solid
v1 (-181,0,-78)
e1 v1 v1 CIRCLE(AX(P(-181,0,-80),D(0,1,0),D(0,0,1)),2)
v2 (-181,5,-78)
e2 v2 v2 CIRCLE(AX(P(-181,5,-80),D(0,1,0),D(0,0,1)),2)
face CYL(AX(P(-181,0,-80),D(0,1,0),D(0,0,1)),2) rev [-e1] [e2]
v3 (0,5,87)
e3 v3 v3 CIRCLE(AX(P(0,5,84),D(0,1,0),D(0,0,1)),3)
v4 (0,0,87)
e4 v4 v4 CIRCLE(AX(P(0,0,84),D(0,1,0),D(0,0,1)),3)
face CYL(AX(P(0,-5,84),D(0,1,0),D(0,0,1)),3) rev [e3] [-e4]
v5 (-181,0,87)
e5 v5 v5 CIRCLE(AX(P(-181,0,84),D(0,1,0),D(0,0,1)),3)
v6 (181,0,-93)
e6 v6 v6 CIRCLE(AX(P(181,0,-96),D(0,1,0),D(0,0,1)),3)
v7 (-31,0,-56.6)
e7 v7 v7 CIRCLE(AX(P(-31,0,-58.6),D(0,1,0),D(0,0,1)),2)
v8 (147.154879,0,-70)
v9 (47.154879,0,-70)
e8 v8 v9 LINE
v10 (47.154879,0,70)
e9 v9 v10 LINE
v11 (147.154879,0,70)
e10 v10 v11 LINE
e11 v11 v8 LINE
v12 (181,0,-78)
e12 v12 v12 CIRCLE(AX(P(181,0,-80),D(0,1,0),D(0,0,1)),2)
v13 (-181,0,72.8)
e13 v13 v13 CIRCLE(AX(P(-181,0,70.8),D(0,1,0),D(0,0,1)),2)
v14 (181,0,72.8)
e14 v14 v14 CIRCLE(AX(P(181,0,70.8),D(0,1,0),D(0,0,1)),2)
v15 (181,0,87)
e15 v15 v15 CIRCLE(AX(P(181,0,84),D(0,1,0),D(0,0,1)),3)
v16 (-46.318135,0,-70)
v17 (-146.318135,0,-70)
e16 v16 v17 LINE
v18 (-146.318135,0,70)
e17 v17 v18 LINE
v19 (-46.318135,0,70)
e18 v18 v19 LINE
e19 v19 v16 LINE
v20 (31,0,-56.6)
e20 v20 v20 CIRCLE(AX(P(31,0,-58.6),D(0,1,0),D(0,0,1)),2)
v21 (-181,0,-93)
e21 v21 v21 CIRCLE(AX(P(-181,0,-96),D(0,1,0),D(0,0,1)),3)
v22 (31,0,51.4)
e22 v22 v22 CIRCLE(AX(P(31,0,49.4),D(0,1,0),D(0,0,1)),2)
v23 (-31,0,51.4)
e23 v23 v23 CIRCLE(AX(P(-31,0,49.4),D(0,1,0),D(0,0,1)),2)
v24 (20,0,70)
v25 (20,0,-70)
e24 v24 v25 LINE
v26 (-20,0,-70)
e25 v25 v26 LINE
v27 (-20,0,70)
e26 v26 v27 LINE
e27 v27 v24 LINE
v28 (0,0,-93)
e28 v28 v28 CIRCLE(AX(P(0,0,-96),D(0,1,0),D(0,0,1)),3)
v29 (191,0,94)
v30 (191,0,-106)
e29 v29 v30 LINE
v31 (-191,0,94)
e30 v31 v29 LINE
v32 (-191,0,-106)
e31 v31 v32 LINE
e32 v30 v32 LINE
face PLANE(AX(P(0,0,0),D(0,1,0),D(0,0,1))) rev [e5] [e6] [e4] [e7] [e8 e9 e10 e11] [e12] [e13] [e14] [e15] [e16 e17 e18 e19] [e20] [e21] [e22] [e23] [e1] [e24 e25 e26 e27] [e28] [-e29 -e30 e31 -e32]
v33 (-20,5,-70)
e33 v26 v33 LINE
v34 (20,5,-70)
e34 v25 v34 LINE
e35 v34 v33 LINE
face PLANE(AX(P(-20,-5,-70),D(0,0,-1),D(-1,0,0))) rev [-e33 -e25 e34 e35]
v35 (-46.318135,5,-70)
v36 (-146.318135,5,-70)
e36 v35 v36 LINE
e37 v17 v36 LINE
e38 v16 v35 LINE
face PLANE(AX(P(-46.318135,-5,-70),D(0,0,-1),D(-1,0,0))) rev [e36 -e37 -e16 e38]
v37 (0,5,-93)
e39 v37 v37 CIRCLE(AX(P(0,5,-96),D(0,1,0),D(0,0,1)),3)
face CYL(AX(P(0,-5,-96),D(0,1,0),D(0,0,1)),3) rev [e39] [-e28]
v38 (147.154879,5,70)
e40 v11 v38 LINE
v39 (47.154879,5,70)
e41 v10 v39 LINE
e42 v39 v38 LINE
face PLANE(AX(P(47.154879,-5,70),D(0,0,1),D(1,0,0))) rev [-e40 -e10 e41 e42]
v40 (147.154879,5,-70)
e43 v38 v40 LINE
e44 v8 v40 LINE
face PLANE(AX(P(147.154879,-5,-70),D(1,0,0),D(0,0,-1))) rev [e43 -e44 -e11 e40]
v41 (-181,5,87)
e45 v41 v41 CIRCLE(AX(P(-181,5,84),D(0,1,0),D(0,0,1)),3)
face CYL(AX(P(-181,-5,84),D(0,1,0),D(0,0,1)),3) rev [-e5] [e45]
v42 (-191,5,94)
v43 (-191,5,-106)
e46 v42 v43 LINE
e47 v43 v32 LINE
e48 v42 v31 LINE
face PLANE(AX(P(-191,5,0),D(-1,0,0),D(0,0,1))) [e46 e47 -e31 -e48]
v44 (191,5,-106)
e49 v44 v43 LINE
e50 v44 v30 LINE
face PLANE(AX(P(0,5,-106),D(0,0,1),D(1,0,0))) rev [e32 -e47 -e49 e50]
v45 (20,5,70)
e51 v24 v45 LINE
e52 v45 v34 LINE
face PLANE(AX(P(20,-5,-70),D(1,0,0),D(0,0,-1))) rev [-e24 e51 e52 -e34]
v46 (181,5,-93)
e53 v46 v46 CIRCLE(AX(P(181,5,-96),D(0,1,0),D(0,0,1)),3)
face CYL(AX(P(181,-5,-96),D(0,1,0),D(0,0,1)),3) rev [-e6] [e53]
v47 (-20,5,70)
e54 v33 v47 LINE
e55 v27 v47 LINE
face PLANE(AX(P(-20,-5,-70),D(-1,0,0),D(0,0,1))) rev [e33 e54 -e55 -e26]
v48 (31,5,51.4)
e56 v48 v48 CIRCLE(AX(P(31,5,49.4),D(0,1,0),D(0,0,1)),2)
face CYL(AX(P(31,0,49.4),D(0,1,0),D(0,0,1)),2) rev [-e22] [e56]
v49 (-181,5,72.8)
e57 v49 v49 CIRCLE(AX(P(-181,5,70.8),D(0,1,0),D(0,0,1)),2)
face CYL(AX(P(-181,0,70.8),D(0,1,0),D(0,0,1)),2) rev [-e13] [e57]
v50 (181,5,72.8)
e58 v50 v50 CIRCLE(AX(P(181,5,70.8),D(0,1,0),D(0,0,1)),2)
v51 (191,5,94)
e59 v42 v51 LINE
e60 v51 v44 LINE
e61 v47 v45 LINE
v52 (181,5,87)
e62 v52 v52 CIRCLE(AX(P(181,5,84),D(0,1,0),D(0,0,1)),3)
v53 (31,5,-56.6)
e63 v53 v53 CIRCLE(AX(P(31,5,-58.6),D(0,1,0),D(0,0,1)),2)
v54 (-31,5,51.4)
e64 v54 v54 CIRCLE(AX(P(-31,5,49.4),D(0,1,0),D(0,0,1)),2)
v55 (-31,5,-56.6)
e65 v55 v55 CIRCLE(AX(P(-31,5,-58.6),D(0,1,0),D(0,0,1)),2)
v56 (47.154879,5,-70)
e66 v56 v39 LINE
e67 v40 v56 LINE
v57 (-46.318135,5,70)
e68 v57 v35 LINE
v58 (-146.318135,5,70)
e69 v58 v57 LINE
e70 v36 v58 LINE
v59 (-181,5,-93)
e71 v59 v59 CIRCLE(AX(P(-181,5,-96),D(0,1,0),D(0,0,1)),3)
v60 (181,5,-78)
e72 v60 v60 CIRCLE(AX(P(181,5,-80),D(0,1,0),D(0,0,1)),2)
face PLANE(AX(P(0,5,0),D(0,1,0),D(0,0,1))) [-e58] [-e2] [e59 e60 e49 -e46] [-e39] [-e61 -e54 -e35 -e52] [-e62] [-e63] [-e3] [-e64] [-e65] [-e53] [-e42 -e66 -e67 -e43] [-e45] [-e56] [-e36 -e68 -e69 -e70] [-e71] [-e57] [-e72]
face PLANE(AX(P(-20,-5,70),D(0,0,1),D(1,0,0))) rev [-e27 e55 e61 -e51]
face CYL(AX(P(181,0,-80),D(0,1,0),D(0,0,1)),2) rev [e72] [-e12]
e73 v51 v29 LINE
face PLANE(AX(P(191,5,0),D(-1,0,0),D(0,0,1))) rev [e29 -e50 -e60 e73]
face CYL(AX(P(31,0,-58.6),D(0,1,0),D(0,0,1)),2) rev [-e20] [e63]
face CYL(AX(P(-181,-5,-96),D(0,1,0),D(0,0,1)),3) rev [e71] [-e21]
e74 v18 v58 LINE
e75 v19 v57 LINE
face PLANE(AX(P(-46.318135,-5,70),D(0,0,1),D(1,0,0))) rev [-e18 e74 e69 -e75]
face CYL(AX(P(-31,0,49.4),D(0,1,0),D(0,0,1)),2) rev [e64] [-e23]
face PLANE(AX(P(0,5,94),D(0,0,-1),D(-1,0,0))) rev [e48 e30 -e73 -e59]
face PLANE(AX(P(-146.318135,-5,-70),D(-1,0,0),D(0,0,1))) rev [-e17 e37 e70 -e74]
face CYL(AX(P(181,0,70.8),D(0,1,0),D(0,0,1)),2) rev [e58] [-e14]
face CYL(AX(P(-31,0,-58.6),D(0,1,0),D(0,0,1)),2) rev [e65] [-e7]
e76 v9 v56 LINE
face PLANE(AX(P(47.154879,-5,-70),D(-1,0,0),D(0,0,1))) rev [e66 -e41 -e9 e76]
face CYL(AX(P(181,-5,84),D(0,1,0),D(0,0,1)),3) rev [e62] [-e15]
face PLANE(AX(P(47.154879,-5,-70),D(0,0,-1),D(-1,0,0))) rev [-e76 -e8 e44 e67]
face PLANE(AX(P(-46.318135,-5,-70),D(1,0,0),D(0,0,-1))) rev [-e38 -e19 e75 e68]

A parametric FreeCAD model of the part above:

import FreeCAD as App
import Part
import Sketcher

V = App.Vector
Q = App.Units.Quantity


def add_polygon(sketch, points):
    """Adds a closed chain of lines whose ends are joined by coincident constraints."""
    first, n = sketch.GeometryCount, len(points)
    for a, b in zip(points, points[1:] + points[:1]):
        sketch.addGeometry(Part.LineSegment(App.Vector(*a, 0), App.Vector(*b, 0)), False)
    for i in range(n):
        sketch.addConstraint(Sketcher.Constraint("Coincident", first + i, 2, first + (i + 1) % n, 1))

doc = App.newDocument("Part")
body = doc.addObject("PartDesign::Body", "Body")

# Sketch on XZ plane
sketch1 = doc.addObject("Sketcher::SketchObject", "Sketch")
body.addObject(sketch1)
sketch1.AttachmentSupport = (doc.XZ_Plane, [""])
sketch1.MapMode = "FlatFace"
add_polygon(sketch1, [(-191, -106), (-191, 94), (191, 94), (191, -106)])  # lines 0-3
sketch1.addConstraint([
    Sketcher.Constraint("Vertical", 0),
    Sketcher.Constraint("Horizontal", 1),
    Sketcher.Constraint("Vertical", 2),
    Sketcher.Constraint("Horizontal", 3),
    Sketcher.Constraint("DistanceX", 1, 1, 1, 2, Q("382 mm")),
    Sketcher.Constraint("DistanceY", 0, 1, 0, 2, Q("200 mm")),
    Sketcher.Constraint("DistanceX", 0, 2, -1, 1, Q("191 mm")),
    Sketcher.Constraint("DistanceY", -1, 1, 0, 2, Q("94 mm")),
])
pad1 = doc.addObject("PartDesign::Pad", "Pad")
body.addObject(pad1)
pad1.Profile = sketch1
pad1.Length = 5
pad1.Reversed = True

# Sketch on XZ plane
sketch2 = doc.addObject("Sketcher::SketchObject", "Sketch001")
body.addObject(sketch2)
sketch2.AttachmentSupport = (doc.XZ_Plane, [""])
sketch2.MapMode = "FlatFace"
sketch2.AttachmentOffset = App.Placement(V(0, 0, -5), App.Rotation())
sketch2.addGeometry([
    Part.Circle(V(181, -80, 0), V(0, 0, 1), 2),  # 0
    Part.Circle(V(181, 70.8, 0), V(0, 0, 1), 2),  # 1
    Part.Circle(V(31, -58.6, 0), V(0, 0, 1), 2),  # 2
    Part.Circle(V(-31, -58.6, 0), V(0, 0, 1), 2),  # 3
    Part.Circle(V(-181, -80, 0), V(0, 0, 1), 2),  # 4
    Part.Circle(V(-181, 70.8, 0), V(0, 0, 1), 2),  # 5
    Part.Circle(V(31, 49.4, 0), V(0, 0, 1), 2),  # 6
    Part.Circle(V(-31, 49.4, 0), V(0, 0, 1), 2),  # 7
], False)
sketch2.addConstraint([
    Sketcher.Constraint("Equal", 0, 1),
    Sketcher.Constraint("Equal", 1, 2),
    Sketcher.Constraint("Equal", 2, 3),
    Sketcher.Constraint("Equal", 3, 4),
    Sketcher.Constraint("Equal", 4, 5),
    Sketcher.Constraint("Equal", 5, 6),
    Sketcher.Constraint("Equal", 6, 7),
    Sketcher.Constraint("Symmetric", 2, 3, 3, 3, -2),
    Sketcher.Constraint("Symmetric", 0, 3, 4, 3, -2),
    Sketcher.Constraint("Symmetric", 1, 3, 5, 3, -2),
    Sketcher.Constraint("Symmetric", 6, 3, 7, 3, -2),
    Sketcher.Constraint("Vertical", 0, 3, 1, 3),
    Sketcher.Constraint("Vertical", 2, 3, 6, 3),
    Sketcher.Constraint("Diameter", 0, Q("4 mm")),
    Sketcher.Constraint("DistanceX", -1, 1, 0, 3, Q("181 mm")),
    Sketcher.Constraint("DistanceY", 0, 3, -1, 1, Q("80 mm")),
    Sketcher.Constraint("DistanceX", -1, 1, 2, 3, Q("31 mm")),
    Sketcher.Constraint("DistanceY", 2, 3, 6, 3, Q("108 mm")),
    Sketcher.Constraint("DistanceY", -1, 1, 1, 3, Q("70.8 mm")),
    Sketcher.Constraint("DistanceY", 2, 3, -1, 1, Q("58.6 mm")),
])
pocket1 = doc.addObject("PartDesign::Pocket", "Pocket")
body.addObject(pocket1)
pocket1.Profile = sketch2
pocket1.Length = 5
pocket1.Reversed = True

# Sketch on XZ plane
sketch3 = doc.addObject("Sketcher::SketchObject", "Sketch002")
body.addObject(sketch3)
sketch3.AttachmentSupport = (doc.XZ_Plane, [""])
sketch3.MapMode = "FlatFace"
sketch3.AttachmentOffset = App.Placement(V(0, 0, -5), App.Rotation())
add_polygon(sketch3, [(-20, -70), (-20, 70), (20, 70), (20, -70)])  # lines 0-3
add_polygon(sketch3, [(47.154879, -70), (47.154879, 70), (147.154879, 70), (147.154879, -70)])  # lines 4-7
add_polygon(sketch3, [(-146.318135, -70), (-146.318135, 70), (-46.318135, 70), (-46.318135, -70)])  # lines 8-11
sketch3.addConstraint([
    Sketcher.Constraint("Vertical", 0),
    Sketcher.Constraint("Horizontal", 1),
    Sketcher.Constraint("Vertical", 2),
    Sketcher.Constraint("Horizontal", 3),
    Sketcher.Constraint("Vertical", 4),
    Sketcher.Constraint("Horizontal", 5),
    Sketcher.Constraint("Vertical", 6),
    Sketcher.Constraint("Horizontal", 7),
    Sketcher.Constraint("Vertical", 8),
    Sketcher.Constraint("Horizontal", 9),
    Sketcher.Constraint("Vertical", 10),
    Sketcher.Constraint("Horizontal", 11),
    Sketcher.Constraint("Symmetric", 0, 2, 2, 2, -1, 1),
    Sketcher.Constraint("Horizontal", 1, 2, 4, 2),
    Sketcher.Constraint("Horizontal", 3, 2, 6, 2),
    Sketcher.Constraint("Horizontal", 5, 2, 8, 2),
    Sketcher.Constraint("Horizontal", 7, 2, 10, 2),
    Sketcher.Constraint("Equal", 7, 9),
    Sketcher.Constraint("DistanceX", 1, 1, 1, 2, Q("40 mm")),
    Sketcher.Constraint("DistanceX", 5, 1, 5, 2, Q("100 mm")),
    Sketcher.Constraint("DistanceY", 0, 1, 0, 2, Q("140 mm")),
    Sketcher.Constraint("DistanceX", -1, 1, 4, 2, Q("47.154879 mm")),
    Sketcher.Constraint("DistanceX", 8, 2, -1, 1, Q("146.318135 mm")),
])
pocket2 = doc.addObject("PartDesign::Pocket", "Pocket001")
body.addObject(pocket2)
pocket2.Profile = sketch3
pocket2.Length = 10
pocket2.Reversed = True

# Sketch on XZ plane
sketch4 = doc.addObject("Sketcher::SketchObject", "Sketch003")
body.addObject(sketch4)
sketch4.AttachmentSupport = (doc.XZ_Plane, [""])
sketch4.MapMode = "FlatFace"
sketch4.AttachmentOffset = App.Placement(V(0, 0, -5), App.Rotation())
sketch4.addGeometry([
    Part.Circle(V(181, -96, 0), V(0, 0, 1), 3),  # 0
    Part.Circle(V(181, 84, 0), V(0, 0, 1), 3),  # 1
    Part.Circle(V(-181, -96, 0), V(0, 0, 1), 3),  # 2
    Part.Circle(V(-181, 84, 0), V(0, 0, 1), 3),  # 3
    Part.Circle(V(0, -96, 0), V(0, 0, 1), 3),  # 4
    Part.Circle(V(0, 84, 0), V(0, 0, 1), 3),  # 5
], False)
sketch4.addConstraint([
    Sketcher.Constraint("Equal", 0, 1),
    Sketcher.Constraint("Equal", 1, 2),
    Sketcher.Constraint("Equal", 2, 3),
    Sketcher.Constraint("Equal", 3, 4),
    Sketcher.Constraint("Equal", 4, 5),
    Sketcher.Constraint("Symmetric", 0, 3, 2, 3, -2),
    Sketcher.Constraint("Symmetric", 1, 3, 3, 3, -2),
    Sketcher.Constraint("PointOnObject", 4, 3, -2),
    Sketcher.Constraint("PointOnObject", 5, 3, -2),
    Sketcher.Constraint("Horizontal", 2, 3, 4, 3),
    Sketcher.Constraint("Horizontal", 3, 3, 5, 3),
    Sketcher.Constraint("Vertical", 0, 3, 1, 3),
    Sketcher.Constraint("Diameter", 0, Q("6 mm")),
    Sketcher.Constraint("DistanceX", -1, 1, 0, 3, Q("181 mm")),
    Sketcher.Constraint("DistanceY", 0, 3, -1, 1, Q("96 mm")),
    Sketcher.Constraint("DistanceY", -1, 1, 1, 3, Q("84 mm")),
])
pocket3 = doc.addObject("PartDesign::Pocket", "Pocket002")
body.addObject(pocket3)
pocket3.Profile = sketch4
pocket3.Length = 10
pocket3.Reversed = True

doc.recompute()
